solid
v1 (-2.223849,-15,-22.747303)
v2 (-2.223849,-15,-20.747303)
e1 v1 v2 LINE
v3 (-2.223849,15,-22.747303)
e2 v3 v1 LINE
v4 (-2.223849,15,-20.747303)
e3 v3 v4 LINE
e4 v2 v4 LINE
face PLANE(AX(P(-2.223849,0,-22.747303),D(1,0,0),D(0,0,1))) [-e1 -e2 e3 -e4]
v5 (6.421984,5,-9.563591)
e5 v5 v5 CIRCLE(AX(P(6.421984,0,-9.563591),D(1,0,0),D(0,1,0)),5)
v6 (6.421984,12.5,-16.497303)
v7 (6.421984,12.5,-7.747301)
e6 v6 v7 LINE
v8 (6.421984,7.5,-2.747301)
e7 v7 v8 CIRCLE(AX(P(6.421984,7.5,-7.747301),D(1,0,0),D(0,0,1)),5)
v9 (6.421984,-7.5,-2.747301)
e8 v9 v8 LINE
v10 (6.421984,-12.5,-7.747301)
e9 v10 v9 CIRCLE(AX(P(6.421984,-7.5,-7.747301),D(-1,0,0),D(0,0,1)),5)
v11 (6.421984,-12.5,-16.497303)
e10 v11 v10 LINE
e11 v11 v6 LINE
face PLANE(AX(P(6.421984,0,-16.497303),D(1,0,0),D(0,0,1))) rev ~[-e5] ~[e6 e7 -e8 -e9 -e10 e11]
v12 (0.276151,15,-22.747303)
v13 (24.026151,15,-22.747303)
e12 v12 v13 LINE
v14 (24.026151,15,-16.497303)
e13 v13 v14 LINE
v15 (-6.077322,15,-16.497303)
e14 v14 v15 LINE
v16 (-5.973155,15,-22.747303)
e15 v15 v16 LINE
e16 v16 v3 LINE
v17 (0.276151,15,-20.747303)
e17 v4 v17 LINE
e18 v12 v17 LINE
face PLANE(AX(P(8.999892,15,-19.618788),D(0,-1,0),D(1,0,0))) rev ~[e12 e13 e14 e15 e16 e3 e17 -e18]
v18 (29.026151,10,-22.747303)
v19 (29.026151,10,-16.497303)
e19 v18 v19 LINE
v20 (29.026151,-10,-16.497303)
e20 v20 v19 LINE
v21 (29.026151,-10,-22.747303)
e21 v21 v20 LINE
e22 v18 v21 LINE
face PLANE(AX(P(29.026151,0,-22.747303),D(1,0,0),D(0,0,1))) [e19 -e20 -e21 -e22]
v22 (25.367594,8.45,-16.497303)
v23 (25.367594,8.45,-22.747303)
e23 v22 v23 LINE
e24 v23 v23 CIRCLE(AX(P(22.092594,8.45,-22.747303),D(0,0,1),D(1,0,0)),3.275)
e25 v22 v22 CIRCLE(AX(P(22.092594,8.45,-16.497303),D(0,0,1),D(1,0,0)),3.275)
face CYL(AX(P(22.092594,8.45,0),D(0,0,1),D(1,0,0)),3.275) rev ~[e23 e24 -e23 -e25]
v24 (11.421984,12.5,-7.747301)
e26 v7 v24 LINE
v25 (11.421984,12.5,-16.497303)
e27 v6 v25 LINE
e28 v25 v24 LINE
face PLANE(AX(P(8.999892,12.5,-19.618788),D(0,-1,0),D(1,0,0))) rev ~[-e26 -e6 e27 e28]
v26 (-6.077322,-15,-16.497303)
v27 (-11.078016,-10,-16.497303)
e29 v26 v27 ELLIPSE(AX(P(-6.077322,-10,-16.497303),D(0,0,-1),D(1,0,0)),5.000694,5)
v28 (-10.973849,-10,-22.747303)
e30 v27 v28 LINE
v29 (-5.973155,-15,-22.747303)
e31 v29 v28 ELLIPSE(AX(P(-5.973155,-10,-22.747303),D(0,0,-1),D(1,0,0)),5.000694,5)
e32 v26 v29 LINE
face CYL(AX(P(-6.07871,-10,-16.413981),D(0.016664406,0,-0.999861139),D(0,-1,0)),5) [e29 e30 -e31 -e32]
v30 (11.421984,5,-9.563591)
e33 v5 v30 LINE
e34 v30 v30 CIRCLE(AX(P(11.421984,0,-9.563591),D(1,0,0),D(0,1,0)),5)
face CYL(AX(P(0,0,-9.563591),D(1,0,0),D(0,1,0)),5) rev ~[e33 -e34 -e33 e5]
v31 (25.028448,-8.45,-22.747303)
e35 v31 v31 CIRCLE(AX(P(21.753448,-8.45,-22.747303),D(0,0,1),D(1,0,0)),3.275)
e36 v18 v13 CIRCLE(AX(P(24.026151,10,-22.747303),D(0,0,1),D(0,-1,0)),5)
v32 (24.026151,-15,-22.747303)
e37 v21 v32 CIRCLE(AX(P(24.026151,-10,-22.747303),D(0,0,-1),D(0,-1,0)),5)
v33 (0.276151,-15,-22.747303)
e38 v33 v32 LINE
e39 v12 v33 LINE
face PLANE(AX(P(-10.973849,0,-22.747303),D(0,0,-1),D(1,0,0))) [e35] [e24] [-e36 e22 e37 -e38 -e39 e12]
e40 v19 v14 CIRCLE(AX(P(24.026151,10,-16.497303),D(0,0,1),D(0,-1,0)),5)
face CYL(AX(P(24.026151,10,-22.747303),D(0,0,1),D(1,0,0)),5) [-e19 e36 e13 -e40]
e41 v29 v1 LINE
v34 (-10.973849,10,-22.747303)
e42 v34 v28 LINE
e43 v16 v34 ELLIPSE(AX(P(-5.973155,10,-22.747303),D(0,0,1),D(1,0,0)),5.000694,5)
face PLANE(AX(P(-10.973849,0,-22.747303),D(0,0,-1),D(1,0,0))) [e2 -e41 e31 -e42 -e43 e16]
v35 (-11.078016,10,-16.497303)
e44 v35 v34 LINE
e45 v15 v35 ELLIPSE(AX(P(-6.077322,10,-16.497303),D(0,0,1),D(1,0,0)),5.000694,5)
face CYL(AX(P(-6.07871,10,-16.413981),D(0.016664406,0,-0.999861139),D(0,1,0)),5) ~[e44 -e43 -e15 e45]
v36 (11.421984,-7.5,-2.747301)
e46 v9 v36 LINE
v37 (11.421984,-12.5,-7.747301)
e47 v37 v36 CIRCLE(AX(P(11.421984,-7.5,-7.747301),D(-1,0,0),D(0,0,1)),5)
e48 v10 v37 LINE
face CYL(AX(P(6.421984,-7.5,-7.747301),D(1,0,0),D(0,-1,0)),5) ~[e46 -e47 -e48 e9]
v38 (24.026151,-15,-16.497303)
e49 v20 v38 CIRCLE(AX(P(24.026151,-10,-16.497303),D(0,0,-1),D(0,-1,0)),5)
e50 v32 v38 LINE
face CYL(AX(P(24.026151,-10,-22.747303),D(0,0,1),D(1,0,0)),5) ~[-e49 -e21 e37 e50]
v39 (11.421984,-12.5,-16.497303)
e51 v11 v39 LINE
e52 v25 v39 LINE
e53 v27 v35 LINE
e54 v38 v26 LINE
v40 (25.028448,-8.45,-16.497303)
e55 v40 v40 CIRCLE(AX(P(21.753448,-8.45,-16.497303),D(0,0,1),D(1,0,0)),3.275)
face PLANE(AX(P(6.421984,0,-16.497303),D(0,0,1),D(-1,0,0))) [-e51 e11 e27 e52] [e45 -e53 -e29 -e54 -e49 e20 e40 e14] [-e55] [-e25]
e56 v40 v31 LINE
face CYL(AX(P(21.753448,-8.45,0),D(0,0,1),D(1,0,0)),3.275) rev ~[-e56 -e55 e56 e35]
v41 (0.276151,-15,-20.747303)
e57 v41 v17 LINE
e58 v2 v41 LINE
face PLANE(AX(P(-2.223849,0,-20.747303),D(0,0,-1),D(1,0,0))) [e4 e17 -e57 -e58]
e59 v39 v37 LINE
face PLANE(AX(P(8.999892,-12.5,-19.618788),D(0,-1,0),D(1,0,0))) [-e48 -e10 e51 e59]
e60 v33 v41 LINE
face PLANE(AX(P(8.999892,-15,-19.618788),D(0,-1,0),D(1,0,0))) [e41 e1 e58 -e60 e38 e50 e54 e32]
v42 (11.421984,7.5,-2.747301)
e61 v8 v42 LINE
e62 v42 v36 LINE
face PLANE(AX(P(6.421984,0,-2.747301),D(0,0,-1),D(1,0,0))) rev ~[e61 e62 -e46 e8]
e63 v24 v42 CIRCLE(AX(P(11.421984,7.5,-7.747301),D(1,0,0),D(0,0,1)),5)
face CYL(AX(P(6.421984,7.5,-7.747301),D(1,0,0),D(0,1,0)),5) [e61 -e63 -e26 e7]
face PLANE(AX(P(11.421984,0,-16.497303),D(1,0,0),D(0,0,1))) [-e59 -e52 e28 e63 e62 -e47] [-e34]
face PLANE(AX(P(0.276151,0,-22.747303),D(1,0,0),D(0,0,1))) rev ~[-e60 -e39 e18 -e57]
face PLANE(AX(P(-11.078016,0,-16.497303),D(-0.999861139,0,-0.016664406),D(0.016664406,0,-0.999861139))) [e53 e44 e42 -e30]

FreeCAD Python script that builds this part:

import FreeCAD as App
import Part
import Sketcher
from FreeCAD import Vector
Q = App.Units.Quantity


def edges_at(feature, points):
    """Names of the edges that pass closest to the given points."""
    edges = feature.Shape.Edges
    near = lambda p: min(range(len(edges)), key=lambda i: edges[i].distToShape(Part.Vertex(*p))[0])
    return sorted({f"Edge{near(p) + 1}" for p in points})


def add_polygon(sketch, points):
    """Adds a closed chain of lines whose ends are joined by coincident constraints."""
    first, n = sketch.GeometryCount, len(points)
    for a, b in zip(points, points[1:] + points[:1]):
        sketch.addGeometry(Part.LineSegment(App.Vector(*a, 0), App.Vector(*b, 0)), False)
    for i in range(n):
        sketch.addConstraint(Sketcher.Constraint("Coincident", first + i, 2, first + (i + 1) % n, 1))

doc = App.newDocument("Part")
params = doc.addObject("Spreadsheet::Sheet", "Params")
for row, (alias, value) in enumerate([
    ("sketch1_width", "40 mm"),
    ("sketch1_height", "6.25 mm"),
    ("pad1_length", "30 mm"),
    ("sketch2_width", "40 mm"),
    ("sketch2_width2", "5 mm"),
    ("sketch2_width3", "17.5 mm"),
    ("sketch2_height", "6.25 mm"),
    ("pad2_length", "25 mm"),
    ("fillet_radius", "5 mm"),
    ("fillet2_radius", "5 mm"),
    ("fillet3_radius", "5 mm"),
    ("sketch3_diameter", "6.55 mm"),
    ("pocket1_length", "25 mm"),
    ("sketch4_height", "2 mm"),
    ("sketch4_width", "2.5 mm"),
    ("pocket2_length", "100 mm"),
    ("sketch5_diameter", "10 mm"),
    ("pocket3_length", "60 mm"),
], start=1):
    params.set(f"A{row}", alias)
    params.set(f"B{row}", "=" + value)
    params.setAlias(f"B{row}", alias)

body = doc.addObject("PartDesign::Body", "Body")

# Sketch on XZ plane
sketch1 = body.newObject("Sketcher::SketchObject", "Sketch")
sketch1.AttachmentSupport = (doc.getObject("XZ_Plane"), [""])
sketch1.MapMode = "FlatFace"
add_polygon(sketch1, [(-11.078016, -16.497303), (-10.973849, -22.747303), (29.026151, -22.747303), (29.026151, -16.497303)])  # lines 0-3
sketch1.addConstraint(Sketcher.Constraint("Horizontal", 1))
sketch1.addConstraint(Sketcher.Constraint("Vertical", 2))
sketch1.addConstraint(Sketcher.Constraint("Horizontal", 3))
sketch1.addConstraint(Sketcher.Constraint("DistanceX", 1, 1, 1, 2, Q("40 mm")))
sketch1.addConstraint(Sketcher.Constraint("DistanceY", 2, 1, 2, 2, Q("6.25 mm")))
sketch1.addConstraint(Sketcher.Constraint("Distance", 0, Q("6.250868 mm")))
sketch1.addConstraint(Sketcher.Constraint("DistanceX", 0, 2, -1, 1, Q("10.973849 mm")))
sketch1.addConstraint(Sketcher.Constraint("DistanceY", 0, 2, -1, 1, Q("22.747303 mm")))
sketch1.setExpression("Constraints[7]", "Params.sketch1_width")
sketch1.setExpression("Constraints[8]", "Params.sketch1_height")
pad1 = body.newObject("PartDesign::Pad", "Pad")
pad1.Profile = sketch1
pad1.setExpression("Length", "Params.pad1_length")
pad1.Midplane = True

# Sketch on XZ plane
sketch2 = body.newObject("Sketcher::SketchObject", "Sketch001")
sketch2.AttachmentSupport = (doc.getObject("XZ_Plane"), [""])
sketch2.MapMode = "FlatFace"
add_polygon(sketch2, [(-11.078016, -16.497303), (-10.973849, -22.747303), (29.026151, -22.747303), (29.026151, -16.497303), (11.421984, -16.497303), (11.421984, -2.747301), (6.421984, -2.747301), (6.421984, -16.497303)])  # lines 0-7
sketch2.addConstraint(Sketcher.Constraint("Horizontal", 1))
sketch2.addConstraint(Sketcher.Constraint("Vertical", 2))
sketch2.addConstraint(Sketcher.Constraint("Horizontal", 3))
sketch2.addConstraint(Sketcher.Constraint("Vertical", 4))
sketch2.addConstraint(Sketcher.Constraint("Horizontal", 5))
sketch2.addConstraint(Sketcher.Constraint("Vertical", 6))
sketch2.addConstraint(Sketcher.Constraint("Horizontal", 7))
sketch2.addConstraint(Sketcher.Constraint("Horizontal", 3, 2, 6, 2))
sketch2.addConstraint(Sketcher.Constraint("DistanceX", 1, 1, 1, 2, Q("40 mm")))
sketch2.addConstraint(Sketcher.Constraint("DistanceX", 5, 2, 5, 1, Q("5 mm")))
sketch2.addConstraint(Sketcher.Constraint("DistanceX", 7, 2, 7, 1, Q("17.5 mm")))
sketch2.addConstraint(Sketcher.Constraint("DistanceY", 1, 2, 4, 2, Q("20.000002 mm")))
sketch2.addConstraint(Sketcher.Constraint("DistanceY", 2, 1, 2, 2, Q("6.25 mm")))
sketch2.addConstraint(Sketcher.Constraint("DistanceY", 4, 2, -1, 1, Q("2.747301 mm")))
sketch2.addConstraint(Sketcher.Constraint("Distance", 0, Q("6.250868 mm")))
sketch2.addConstraint(Sketcher.Constraint("DistanceX", 0, 2, -1, 1, Q("10.973849 mm")))
sketch2.setExpression("Constraints[16]", "Params.sketch2_width")
sketch2.setExpression("Constraints[17]", "Params.sketch2_width2")
sketch2.setExpression("Constraints[18]", "Params.sketch2_width3")
sketch2.setExpression("Constraints[20]", "Params.sketch2_height")
pad2 = body.newObject("PartDesign::Pad", "Pad001")
pad2.Profile = sketch2
pad2.setExpression("Length", "Params.pad2_length")
pad2.Midplane = True
doc.recompute()

fillet = body.newObject("PartDesign::Fillet", "Fillet")
fillet.Base = (pad2, edges_at(pad2, [(29.026, -15, -19.622)]))
fillet.setExpression("Radius", "Params.fillet_radius")
doc.recompute()

fillet2 = body.newObject("PartDesign::Fillet", "Fillet001")
fillet2.Base = (fillet, edges_at(fillet, [(29.026, 15, -19.622), (-11.026, -15, -19.622), (-11.026, 15, -19.622)]))
fillet2.setExpression("Radius", "Params.fillet2_radius")
doc.recompute()

fillet3 = body.newObject("PartDesign::Fillet", "Fillet002")
fillet3.Base = (fillet2, edges_at(fillet2, [(8.922, 12.5, -2.747), (8.922, -12.5, -2.747)]))
fillet3.setExpression("Radius", "Params.fillet3_radius")

# Sketch on XY plane
sketch3 = body.newObject("Sketcher::SketchObject", "Sketch002")
sketch3.AttachmentSupport = (doc.getObject("XY_Plane"), [""])
sketch3.MapMode = "FlatFace"
sketch3.addGeometry(Part.Circle(Vector(22.092594, 8.45, 0), Vector(0, 0, 1), 3.275), False)
sketch3.addGeometry(Part.Circle(Vector(21.753448, -8.45, 0), Vector(0, 0, 1), 3.275), False)
sketch3.addConstraint(Sketcher.Constraint("Equal", 0, 1))
sketch3.addConstraint(Sketcher.Constraint("Diameter", 0, Q("6.55 mm")))
sketch3.addConstraint(Sketcher.Constraint("DistanceY", 1, 3, 0, 3, Q("16.9 mm")))
sketch3.addConstraint(Sketcher.Constraint("DistanceY", -1, 1, 0, 3, Q("8.45 mm")))
sketch3.addConstraint(Sketcher.Constraint("DistanceX", -1, 1, 0, 3, Q("22.092594 mm")))
sketch3.addConstraint(Sketcher.Constraint("DistanceX", -1, 1, 1, 3, Q("21.753448 mm")))
sketch3.setExpression("Constraints[1]", "Params.sketch3_diameter")
pocket1 = body.newObject("PartDesign::Pocket", "Pocket")
pocket1.Profile = sketch3
pocket1.setExpression("Length", "Params.pocket1_length")

# Sketch on XZ plane
sketch4 = body.newObject("Sketcher::SketchObject", "Sketch003")
sketch4.AttachmentSupport = (doc.getObject("XZ_Plane"), [""])
sketch4.MapMode = "FlatFace"
add_polygon(sketch4, [(-2.223849, -20.747303), (-2.223849, -22.747303), (0.276151, -22.747303), (0.276151, -20.747303)])  # lines 0-3
sketch4.addConstraint(Sketcher.Constraint("Vertical", 0))
sketch4.addConstraint(Sketcher.Constraint("Horizontal", 1))
sketch4.addConstraint(Sketcher.Constraint("Vertical", 2))
sketch4.addConstraint(Sketcher.Constraint("Horizontal", 3))
sketch4.addConstraint(Sketcher.Constraint("DistanceY", 0, 2, 0, 1, Q("2 mm")))
sketch4.addConstraint(Sketcher.Constraint("DistanceX", 1, 1, 1, 2, Q("2.5 mm")))
sketch4.addConstraint(Sketcher.Constraint("DistanceX", 0, 2, -1, 1, Q("2.223849 mm")))
sketch4.addConstraint(Sketcher.Constraint("DistanceY", 0, 2, -1, 1, Q("22.747303 mm")))
sketch4.setExpression("Constraints[8]", "Params.sketch4_height")
sketch4.setExpression("Constraints[9]", "Params.sketch4_width")
pocket2 = body.newObject("PartDesign::Pocket", "Pocket001")
pocket2.Profile = sketch4
pocket2.setExpression("Length", "Params.pocket2_length")
pocket2.Midplane = True

# Sketch on YZ plane
sketch5 = body.newObject("Sketcher::SketchObject", "Sketch004")
sketch5.AttachmentSupport = (doc.getObject("YZ_Plane"), [""])
sketch5.MapMode = "FlatFace"
sketch5.addGeometry(Part.Circle(Vector(0, -9.563591, 0), Vector(0, 0, 1), 5), False)
sketch5.addConstraint(Sketcher.Constraint("PointOnObject", 0, 3, -2))
sketch5.addConstraint(Sketcher.Constraint("Diameter", 0, Q("10 mm")))
sketch5.addConstraint(Sketcher.Constraint("DistanceY", 0, 3, -1, 1, Q("9.563591 mm")))
sketch5.setExpression("Constraints[1]", "Params.sketch5_diameter")
pocket3 = body.newObject("PartDesign::Pocket", "Pocket002")
pocket3.Profile = sketch5
pocket3.setExpression("Length", "Params.pocket3_length")
pocket3.Midplane = True

doc.recompute()
